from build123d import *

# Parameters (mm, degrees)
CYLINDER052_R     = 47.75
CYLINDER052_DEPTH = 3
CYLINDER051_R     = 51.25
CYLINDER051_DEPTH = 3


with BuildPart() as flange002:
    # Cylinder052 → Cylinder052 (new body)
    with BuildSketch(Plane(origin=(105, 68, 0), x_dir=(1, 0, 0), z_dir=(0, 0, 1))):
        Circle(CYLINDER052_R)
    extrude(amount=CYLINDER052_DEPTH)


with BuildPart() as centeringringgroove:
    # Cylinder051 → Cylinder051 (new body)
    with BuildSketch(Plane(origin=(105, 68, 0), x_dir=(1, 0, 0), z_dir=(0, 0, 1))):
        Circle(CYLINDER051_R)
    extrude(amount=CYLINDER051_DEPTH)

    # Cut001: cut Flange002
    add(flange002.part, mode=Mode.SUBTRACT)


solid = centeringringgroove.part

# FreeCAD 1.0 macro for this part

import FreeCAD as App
import Part
import Sketcher
from FreeCAD import Vector

doc = App.newDocument("Part")
body = doc.addObject("PartDesign::Body", "Body")

# Sketch on XY plane
sketch1 = body.newObject("Sketcher::SketchObject", "Sketch")
sketch1.AttachmentSupport = (doc.getObject("XY_Plane"), [""])
sketch1.MapMode = "FlatFace"
sketch1.addGeometry(Part.Circle(Vector(105, 68, 0), Vector(0, 0, 1), 47.75), False)
sketch1.addConstraint(Sketcher.Constraint("Diameter", 0, 95.5))
sketch1.addConstraint(Sketcher.Constraint("DistanceX", -1, 1, 0, 3, 105.0))
sketch1.addConstraint(Sketcher.Constraint("DistanceY", -1, 1, 0, 3, 68.0))
pad1 = body.newObject("PartDesign::Pad", "Pad")
pad1.Profile = sketch1
pad1.Length = 3
body2 = doc.addObject("PartDesign::Body", "Body001")

# Sketch on XY plane
sketch2 = body2.newObject("Sketcher::SketchObject", "Sketch001")
sketch2.AttachmentSupport = (doc.getObject("XY_Plane001"), [""])
sketch2.MapMode = "FlatFace"
sketch2.addGeometry(Part.Circle(Vector(105, 68, 0), Vector(0, 0, 1), 51.25), False)
sketch2.addConstraint(Sketcher.Constraint("Diameter", 0, 102.5))
sketch2.addConstraint(Sketcher.Constraint("DistanceX", -1, 1, 0, 3, 105.0))
sketch2.addConstraint(Sketcher.Constraint("DistanceY", -1, 1, 0, 3, 68.0))
pad2 = body2.newObject("PartDesign::Pad", "Pad001")
pad2.Profile = sketch2
pad2.Length = 3
doc.recompute()

boolean = body2.newObject("PartDesign::Boolean", "Boolean")
boolean.Type = "Cut"
boolean.addObjects([body])

doc.recompute()
